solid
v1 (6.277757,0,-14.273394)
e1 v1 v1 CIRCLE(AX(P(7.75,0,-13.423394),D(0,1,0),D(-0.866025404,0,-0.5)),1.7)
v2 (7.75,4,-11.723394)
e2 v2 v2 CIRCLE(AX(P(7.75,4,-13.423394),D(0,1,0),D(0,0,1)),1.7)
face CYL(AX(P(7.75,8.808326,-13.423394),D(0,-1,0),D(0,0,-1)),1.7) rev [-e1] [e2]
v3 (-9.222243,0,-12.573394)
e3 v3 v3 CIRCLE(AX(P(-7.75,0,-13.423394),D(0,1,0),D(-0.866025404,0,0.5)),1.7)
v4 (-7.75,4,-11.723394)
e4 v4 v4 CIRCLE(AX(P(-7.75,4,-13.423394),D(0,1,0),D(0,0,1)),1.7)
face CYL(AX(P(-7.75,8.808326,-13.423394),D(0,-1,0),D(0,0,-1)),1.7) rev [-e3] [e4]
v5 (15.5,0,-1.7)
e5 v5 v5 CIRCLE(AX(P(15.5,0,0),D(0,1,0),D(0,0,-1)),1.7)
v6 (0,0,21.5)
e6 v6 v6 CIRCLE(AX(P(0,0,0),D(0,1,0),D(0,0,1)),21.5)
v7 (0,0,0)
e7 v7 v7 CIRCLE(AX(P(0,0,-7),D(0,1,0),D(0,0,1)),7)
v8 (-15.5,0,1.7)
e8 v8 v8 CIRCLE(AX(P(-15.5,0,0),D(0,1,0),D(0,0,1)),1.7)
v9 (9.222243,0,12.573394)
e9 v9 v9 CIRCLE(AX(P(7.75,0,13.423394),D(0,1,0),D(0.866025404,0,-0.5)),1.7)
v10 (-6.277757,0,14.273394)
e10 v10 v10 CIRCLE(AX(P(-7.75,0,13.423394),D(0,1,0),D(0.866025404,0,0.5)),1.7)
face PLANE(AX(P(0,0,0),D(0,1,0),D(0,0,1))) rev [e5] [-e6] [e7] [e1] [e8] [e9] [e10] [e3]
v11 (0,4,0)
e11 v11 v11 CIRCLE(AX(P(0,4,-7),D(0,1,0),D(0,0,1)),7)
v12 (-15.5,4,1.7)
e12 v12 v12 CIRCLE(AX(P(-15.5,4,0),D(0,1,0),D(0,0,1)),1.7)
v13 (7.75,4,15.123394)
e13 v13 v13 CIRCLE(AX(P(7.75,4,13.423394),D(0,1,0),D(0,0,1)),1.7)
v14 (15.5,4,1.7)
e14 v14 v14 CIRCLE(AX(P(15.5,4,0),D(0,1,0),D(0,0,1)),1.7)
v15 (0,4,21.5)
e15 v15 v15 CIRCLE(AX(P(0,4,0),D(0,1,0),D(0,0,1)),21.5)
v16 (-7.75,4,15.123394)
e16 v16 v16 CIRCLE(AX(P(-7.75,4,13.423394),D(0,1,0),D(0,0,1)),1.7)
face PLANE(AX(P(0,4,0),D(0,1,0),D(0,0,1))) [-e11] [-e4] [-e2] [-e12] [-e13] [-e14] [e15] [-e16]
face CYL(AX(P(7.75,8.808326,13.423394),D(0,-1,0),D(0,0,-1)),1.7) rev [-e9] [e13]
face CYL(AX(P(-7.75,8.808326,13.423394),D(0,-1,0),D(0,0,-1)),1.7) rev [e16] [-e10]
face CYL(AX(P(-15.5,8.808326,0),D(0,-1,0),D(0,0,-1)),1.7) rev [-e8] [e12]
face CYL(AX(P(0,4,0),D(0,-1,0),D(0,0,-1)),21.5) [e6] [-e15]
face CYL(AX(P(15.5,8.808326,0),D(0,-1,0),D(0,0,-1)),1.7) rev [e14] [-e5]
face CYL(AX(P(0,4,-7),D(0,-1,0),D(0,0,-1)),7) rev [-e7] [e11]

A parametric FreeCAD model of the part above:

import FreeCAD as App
import Part
import Sketcher
Q = App.Units.Quantity

doc = App.newDocument("Part")
body = doc.addObject("PartDesign::Body", "Body")

# Sketch on XZ plane
sketch1 = body.newObject("Sketcher::SketchObject", "Sketch")
sketch1.AttachmentSupport = (doc.getObject("XZ_Plane"), [""])
sketch1.MapMode = "FlatFace"
sketch1.addGeometry([
    Part.Circle(App.Vector(0, 0, 0), App.Vector(0, 0, 1), 22),
    Part.Circle(App.Vector(0, -7, 0), App.Vector(0, 0, 1), 7),
], False)
sketch1.addConstraint([
    Sketcher.Constraint("Coincident", 0, 3, -1, 1),
    Sketcher.Constraint("PointOnObject", 1, 3, -2),
    Sketcher.Constraint("Diameter", 0, Q("43 mm")),
    Sketcher.Constraint("Diameter", 1, Q("14 mm")),
    Sketcher.Constraint("DistanceY", 1, 3, -1, 1, Q("7 mm")),
])
pad1 = body.newObject("PartDesign::Pad", "Pad")
pad1.Profile = sketch1
pad1.Length = 4
pad1.Reversed = True

# Sketch on XZ plane
sketch2 = body.newObject("Sketcher::SketchObject", "Sketch001")
sketch2.AttachmentSupport = (doc.getObject("XZ_Plane"), [""])
sketch2.MapMode = "FlatFace"
sketch2.addGeometry(Part.Circle(App.Vector(-15.5, 0, 0), App.Vector(0, 0, 1), 1.7), False)
sketch2.addConstraint([
    Sketcher.Constraint("PointOnObject", 0, 3, -1),
    Sketcher.Constraint("Diameter", 0, Q("3.4 mm")),
    Sketcher.Constraint("DistanceX", 0, 3, -1, 1, Q("15.5 mm")),
])
pocket1 = body.newObject("PartDesign::Pocket", "Pocket")
pocket1.Profile = sketch2
pocket1.Length = 4
doc.recompute()

polarpattern = body.newObject("PartDesign::PolarPattern", "PolarPattern")
polarpattern.Originals = [pocket1]
polarpattern.Axis = (doc.getObject("Y_Axis"), [""])
polarpattern.Angle = 360
polarpattern.Occurrences = 6
body.Tip = polarpattern

doc.recompute()
